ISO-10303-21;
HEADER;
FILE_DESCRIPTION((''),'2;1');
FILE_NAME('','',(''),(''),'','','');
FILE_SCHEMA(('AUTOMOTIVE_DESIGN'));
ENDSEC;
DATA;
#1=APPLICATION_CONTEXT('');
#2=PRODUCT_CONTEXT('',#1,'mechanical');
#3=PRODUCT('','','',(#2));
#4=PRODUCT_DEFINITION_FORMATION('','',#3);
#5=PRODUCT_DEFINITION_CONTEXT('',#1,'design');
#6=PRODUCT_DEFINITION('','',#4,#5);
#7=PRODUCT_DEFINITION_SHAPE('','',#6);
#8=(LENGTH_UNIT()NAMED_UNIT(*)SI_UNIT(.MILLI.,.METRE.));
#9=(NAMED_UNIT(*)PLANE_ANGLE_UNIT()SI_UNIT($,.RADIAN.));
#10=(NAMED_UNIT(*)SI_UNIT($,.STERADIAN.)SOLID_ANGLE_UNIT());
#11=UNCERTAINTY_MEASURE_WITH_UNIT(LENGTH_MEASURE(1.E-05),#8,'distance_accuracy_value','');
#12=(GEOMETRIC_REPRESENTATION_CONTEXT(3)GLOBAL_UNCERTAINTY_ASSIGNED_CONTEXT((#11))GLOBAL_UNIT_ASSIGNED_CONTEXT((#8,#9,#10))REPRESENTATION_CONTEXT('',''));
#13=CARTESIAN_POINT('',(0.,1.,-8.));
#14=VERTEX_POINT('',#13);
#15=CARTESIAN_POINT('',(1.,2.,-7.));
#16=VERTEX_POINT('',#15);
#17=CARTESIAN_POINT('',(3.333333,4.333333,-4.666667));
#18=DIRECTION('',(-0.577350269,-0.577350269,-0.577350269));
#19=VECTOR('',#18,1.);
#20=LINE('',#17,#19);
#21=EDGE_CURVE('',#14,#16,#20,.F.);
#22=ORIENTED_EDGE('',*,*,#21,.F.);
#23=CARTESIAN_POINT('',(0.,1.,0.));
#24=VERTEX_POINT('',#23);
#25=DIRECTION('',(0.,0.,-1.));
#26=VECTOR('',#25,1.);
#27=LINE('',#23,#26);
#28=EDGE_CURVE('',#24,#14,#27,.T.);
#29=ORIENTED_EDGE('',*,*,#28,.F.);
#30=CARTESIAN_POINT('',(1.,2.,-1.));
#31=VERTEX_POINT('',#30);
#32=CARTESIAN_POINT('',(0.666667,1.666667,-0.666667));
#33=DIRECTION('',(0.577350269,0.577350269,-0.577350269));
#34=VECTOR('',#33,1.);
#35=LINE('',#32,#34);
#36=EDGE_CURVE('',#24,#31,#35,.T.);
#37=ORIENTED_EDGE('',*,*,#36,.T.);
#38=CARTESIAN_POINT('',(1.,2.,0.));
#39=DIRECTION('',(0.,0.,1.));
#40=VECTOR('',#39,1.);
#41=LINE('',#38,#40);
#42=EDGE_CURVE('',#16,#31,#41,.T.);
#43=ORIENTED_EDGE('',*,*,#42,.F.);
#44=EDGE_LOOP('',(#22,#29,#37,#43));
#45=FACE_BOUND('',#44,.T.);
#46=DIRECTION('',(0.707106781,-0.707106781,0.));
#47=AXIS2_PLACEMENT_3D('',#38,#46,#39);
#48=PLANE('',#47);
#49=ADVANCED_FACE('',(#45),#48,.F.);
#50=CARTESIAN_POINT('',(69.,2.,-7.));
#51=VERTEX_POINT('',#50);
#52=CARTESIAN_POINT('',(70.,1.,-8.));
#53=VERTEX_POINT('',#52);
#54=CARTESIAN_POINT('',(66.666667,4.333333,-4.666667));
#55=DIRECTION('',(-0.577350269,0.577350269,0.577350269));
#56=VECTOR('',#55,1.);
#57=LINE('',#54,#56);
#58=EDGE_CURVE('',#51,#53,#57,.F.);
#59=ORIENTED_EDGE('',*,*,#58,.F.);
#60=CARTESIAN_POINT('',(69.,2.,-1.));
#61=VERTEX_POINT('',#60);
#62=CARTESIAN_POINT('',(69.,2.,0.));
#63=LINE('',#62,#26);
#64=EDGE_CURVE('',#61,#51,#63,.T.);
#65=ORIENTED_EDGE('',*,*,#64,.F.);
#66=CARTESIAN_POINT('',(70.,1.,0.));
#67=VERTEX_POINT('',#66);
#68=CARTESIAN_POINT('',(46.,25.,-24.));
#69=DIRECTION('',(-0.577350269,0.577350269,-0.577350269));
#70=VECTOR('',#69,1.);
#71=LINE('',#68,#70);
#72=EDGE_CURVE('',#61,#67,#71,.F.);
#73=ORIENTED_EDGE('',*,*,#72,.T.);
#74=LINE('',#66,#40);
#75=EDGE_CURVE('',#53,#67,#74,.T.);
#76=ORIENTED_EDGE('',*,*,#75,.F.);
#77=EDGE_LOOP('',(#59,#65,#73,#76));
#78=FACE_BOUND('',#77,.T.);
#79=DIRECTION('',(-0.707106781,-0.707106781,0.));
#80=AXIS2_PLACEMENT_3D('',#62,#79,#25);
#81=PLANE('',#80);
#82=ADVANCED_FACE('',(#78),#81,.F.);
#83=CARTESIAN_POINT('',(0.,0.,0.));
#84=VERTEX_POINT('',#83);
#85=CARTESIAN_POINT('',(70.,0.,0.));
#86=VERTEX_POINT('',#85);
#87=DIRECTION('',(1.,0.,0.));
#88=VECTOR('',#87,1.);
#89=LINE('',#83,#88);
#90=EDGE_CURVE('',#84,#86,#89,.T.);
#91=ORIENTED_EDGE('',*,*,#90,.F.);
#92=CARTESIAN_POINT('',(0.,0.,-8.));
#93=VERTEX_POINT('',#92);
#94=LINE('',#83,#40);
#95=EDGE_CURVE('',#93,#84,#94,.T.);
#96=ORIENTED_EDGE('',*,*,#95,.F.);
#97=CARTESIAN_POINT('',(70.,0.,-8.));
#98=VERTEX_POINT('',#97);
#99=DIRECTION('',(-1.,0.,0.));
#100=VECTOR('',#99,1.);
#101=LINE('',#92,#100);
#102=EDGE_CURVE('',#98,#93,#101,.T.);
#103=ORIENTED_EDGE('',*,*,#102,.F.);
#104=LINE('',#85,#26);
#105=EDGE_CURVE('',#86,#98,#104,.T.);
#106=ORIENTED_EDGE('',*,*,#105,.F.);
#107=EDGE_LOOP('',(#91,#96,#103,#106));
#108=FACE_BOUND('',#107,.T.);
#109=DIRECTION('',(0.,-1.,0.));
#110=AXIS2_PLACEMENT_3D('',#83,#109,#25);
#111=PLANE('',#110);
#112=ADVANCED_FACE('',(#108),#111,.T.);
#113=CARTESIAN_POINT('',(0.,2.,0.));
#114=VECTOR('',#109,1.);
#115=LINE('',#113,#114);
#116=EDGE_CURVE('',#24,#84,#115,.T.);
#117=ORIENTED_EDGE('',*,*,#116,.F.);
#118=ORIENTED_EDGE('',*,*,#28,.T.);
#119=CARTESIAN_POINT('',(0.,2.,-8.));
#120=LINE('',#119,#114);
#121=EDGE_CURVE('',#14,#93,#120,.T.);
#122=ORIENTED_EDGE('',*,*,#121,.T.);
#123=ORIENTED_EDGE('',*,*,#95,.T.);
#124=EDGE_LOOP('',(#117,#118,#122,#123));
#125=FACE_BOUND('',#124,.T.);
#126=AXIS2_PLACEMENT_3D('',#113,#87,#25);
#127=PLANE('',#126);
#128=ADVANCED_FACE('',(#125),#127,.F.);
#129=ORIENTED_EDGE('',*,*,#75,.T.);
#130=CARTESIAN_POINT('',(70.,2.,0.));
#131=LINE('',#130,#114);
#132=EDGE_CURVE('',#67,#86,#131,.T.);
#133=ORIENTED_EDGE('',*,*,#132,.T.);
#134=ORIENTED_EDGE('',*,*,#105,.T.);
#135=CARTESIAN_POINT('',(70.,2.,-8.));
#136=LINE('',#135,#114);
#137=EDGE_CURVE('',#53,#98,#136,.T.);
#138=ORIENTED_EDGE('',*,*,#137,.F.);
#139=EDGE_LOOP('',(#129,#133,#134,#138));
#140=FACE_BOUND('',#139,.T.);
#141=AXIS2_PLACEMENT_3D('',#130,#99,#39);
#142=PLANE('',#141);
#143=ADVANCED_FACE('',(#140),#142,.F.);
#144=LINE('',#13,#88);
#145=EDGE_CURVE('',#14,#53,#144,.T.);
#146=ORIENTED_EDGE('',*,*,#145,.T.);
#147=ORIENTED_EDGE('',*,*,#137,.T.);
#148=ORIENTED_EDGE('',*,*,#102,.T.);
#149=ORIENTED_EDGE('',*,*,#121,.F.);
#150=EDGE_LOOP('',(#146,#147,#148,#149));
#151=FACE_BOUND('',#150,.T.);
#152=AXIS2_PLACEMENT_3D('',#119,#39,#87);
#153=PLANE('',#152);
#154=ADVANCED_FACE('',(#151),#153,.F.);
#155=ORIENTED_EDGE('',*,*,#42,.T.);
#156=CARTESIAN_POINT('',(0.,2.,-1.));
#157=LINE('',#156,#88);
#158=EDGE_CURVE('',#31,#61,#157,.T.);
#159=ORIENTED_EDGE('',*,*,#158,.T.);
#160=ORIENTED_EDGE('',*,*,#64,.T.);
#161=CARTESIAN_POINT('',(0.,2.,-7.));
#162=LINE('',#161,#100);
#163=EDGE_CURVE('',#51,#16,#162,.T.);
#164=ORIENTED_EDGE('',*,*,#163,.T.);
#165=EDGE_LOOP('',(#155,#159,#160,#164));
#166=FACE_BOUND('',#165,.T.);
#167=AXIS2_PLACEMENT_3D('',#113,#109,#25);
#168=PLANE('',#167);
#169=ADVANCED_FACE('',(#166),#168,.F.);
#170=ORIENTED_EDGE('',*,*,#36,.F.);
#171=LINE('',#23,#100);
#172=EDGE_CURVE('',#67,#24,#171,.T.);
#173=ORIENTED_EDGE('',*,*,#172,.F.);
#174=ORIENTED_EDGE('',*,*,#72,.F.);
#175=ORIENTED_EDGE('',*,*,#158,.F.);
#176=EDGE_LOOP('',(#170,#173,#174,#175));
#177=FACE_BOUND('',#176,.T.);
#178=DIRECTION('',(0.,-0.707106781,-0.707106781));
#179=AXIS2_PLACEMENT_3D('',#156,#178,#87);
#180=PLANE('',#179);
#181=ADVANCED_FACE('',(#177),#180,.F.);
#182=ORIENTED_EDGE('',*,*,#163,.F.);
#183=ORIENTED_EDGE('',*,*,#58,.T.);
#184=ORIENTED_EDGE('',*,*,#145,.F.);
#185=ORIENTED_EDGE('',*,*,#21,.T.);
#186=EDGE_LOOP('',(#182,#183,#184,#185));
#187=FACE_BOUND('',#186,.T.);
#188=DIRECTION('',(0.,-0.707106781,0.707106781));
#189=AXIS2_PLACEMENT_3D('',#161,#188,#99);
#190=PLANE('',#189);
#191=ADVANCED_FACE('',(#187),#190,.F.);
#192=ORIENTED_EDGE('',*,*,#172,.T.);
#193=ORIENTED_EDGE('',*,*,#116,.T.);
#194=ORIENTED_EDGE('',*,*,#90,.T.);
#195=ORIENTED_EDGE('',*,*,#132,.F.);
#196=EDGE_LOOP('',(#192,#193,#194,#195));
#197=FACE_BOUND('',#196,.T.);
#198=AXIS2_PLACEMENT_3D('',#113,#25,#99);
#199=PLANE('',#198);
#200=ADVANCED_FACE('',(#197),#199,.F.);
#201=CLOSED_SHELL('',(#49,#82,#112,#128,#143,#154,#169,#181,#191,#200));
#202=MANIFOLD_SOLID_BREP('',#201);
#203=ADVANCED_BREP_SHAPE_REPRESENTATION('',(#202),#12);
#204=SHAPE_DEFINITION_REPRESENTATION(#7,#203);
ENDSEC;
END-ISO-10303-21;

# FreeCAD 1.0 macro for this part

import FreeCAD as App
import Part
import Sketcher
Q = App.Units.Quantity


def edges_at(feature, points):
    """Names of the edges that pass closest to the given points."""
    edges = feature.Shape.Edges
    near = lambda p: min(range(len(edges)), key=lambda i: edges[i].distToShape(Part.Vertex(*p))[0])
    return sorted({f"Edge{near(p) + 1}" for p in points})

doc = App.newDocument("Part")
params = doc.addObject("Spreadsheet::Sheet", "Params")
for row, (alias, value) in enumerate([
    ("sketch1_width", "70 mm"),
    ("sketch1_height", "8 mm"),
    ("pad1_length", "2 mm"),
    ("chamfer_size", "1 mm"),
], start=1):
    params.set(f"A{row}", alias)
    params.set(f"B{row}", "=" + value)
    params.setAlias(f"B{row}", alias)

body = doc.addObject("PartDesign::Body", "Body")

# Sketch on XZ plane
sketch1 = body.newObject("Sketcher::SketchObject", "Sketch")
sketch1.AttachmentSupport = (doc.getObject("XZ_Plane"), [""])
sketch1.MapMode = "FlatFace"
sketch1.addGeometry([
    Part.LineSegment(App.Vector(0, -8, 0), App.Vector(0, 0, 0)),
    Part.LineSegment(App.Vector(0, 0, 0), App.Vector(70, 0, 0)),
    Part.LineSegment(App.Vector(70, 0, 0), App.Vector(70, -8, 0)),
    Part.LineSegment(App.Vector(70, -8, 0), App.Vector(0, -8, 0)),
], False)
sketch1.addConstraint([
    Sketcher.Constraint("Coincident", 0, 2, 1, 1),
    Sketcher.Constraint("Coincident", 1, 2, 2, 1),
    Sketcher.Constraint("Coincident", 2, 2, 3, 1),
    Sketcher.Constraint("Coincident", 3, 2, 0, 1),
    Sketcher.Constraint("Vertical", 0),
    Sketcher.Constraint("Horizontal", 1),
    Sketcher.Constraint("Vertical", 2),
    Sketcher.Constraint("Horizontal", 3),
    Sketcher.Constraint("Coincident", 0, 2, -1, 1),
    Sketcher.Constraint("DistanceX", 1, 1, 1, 2, Q("70 mm")),
    Sketcher.Constraint("DistanceY", 0, 1, 0, 2, Q("8 mm")),
])
sketch1.setExpression("Constraints[9]", "Params.sketch1_width")
sketch1.setExpression("Constraints[10]", "Params.sketch1_height")
pad1 = body.newObject("PartDesign::Pad", "Pad")
pad1.Profile = sketch1
pad1.setExpression("Length", "Params.pad1_length")
pad1.Reversed = True
doc.recompute()

chamfer = body.newObject("PartDesign::Chamfer", "Chamfer")
chamfer.Base = (pad1, edges_at(pad1, [
    (70, 2, -4),
    (35, 2, -8),
    (0, 2, -4),
    (35, 2, 0),
]))
chamfer.setExpression("Size", "Params.chamfer_size")

doc.recompute()
